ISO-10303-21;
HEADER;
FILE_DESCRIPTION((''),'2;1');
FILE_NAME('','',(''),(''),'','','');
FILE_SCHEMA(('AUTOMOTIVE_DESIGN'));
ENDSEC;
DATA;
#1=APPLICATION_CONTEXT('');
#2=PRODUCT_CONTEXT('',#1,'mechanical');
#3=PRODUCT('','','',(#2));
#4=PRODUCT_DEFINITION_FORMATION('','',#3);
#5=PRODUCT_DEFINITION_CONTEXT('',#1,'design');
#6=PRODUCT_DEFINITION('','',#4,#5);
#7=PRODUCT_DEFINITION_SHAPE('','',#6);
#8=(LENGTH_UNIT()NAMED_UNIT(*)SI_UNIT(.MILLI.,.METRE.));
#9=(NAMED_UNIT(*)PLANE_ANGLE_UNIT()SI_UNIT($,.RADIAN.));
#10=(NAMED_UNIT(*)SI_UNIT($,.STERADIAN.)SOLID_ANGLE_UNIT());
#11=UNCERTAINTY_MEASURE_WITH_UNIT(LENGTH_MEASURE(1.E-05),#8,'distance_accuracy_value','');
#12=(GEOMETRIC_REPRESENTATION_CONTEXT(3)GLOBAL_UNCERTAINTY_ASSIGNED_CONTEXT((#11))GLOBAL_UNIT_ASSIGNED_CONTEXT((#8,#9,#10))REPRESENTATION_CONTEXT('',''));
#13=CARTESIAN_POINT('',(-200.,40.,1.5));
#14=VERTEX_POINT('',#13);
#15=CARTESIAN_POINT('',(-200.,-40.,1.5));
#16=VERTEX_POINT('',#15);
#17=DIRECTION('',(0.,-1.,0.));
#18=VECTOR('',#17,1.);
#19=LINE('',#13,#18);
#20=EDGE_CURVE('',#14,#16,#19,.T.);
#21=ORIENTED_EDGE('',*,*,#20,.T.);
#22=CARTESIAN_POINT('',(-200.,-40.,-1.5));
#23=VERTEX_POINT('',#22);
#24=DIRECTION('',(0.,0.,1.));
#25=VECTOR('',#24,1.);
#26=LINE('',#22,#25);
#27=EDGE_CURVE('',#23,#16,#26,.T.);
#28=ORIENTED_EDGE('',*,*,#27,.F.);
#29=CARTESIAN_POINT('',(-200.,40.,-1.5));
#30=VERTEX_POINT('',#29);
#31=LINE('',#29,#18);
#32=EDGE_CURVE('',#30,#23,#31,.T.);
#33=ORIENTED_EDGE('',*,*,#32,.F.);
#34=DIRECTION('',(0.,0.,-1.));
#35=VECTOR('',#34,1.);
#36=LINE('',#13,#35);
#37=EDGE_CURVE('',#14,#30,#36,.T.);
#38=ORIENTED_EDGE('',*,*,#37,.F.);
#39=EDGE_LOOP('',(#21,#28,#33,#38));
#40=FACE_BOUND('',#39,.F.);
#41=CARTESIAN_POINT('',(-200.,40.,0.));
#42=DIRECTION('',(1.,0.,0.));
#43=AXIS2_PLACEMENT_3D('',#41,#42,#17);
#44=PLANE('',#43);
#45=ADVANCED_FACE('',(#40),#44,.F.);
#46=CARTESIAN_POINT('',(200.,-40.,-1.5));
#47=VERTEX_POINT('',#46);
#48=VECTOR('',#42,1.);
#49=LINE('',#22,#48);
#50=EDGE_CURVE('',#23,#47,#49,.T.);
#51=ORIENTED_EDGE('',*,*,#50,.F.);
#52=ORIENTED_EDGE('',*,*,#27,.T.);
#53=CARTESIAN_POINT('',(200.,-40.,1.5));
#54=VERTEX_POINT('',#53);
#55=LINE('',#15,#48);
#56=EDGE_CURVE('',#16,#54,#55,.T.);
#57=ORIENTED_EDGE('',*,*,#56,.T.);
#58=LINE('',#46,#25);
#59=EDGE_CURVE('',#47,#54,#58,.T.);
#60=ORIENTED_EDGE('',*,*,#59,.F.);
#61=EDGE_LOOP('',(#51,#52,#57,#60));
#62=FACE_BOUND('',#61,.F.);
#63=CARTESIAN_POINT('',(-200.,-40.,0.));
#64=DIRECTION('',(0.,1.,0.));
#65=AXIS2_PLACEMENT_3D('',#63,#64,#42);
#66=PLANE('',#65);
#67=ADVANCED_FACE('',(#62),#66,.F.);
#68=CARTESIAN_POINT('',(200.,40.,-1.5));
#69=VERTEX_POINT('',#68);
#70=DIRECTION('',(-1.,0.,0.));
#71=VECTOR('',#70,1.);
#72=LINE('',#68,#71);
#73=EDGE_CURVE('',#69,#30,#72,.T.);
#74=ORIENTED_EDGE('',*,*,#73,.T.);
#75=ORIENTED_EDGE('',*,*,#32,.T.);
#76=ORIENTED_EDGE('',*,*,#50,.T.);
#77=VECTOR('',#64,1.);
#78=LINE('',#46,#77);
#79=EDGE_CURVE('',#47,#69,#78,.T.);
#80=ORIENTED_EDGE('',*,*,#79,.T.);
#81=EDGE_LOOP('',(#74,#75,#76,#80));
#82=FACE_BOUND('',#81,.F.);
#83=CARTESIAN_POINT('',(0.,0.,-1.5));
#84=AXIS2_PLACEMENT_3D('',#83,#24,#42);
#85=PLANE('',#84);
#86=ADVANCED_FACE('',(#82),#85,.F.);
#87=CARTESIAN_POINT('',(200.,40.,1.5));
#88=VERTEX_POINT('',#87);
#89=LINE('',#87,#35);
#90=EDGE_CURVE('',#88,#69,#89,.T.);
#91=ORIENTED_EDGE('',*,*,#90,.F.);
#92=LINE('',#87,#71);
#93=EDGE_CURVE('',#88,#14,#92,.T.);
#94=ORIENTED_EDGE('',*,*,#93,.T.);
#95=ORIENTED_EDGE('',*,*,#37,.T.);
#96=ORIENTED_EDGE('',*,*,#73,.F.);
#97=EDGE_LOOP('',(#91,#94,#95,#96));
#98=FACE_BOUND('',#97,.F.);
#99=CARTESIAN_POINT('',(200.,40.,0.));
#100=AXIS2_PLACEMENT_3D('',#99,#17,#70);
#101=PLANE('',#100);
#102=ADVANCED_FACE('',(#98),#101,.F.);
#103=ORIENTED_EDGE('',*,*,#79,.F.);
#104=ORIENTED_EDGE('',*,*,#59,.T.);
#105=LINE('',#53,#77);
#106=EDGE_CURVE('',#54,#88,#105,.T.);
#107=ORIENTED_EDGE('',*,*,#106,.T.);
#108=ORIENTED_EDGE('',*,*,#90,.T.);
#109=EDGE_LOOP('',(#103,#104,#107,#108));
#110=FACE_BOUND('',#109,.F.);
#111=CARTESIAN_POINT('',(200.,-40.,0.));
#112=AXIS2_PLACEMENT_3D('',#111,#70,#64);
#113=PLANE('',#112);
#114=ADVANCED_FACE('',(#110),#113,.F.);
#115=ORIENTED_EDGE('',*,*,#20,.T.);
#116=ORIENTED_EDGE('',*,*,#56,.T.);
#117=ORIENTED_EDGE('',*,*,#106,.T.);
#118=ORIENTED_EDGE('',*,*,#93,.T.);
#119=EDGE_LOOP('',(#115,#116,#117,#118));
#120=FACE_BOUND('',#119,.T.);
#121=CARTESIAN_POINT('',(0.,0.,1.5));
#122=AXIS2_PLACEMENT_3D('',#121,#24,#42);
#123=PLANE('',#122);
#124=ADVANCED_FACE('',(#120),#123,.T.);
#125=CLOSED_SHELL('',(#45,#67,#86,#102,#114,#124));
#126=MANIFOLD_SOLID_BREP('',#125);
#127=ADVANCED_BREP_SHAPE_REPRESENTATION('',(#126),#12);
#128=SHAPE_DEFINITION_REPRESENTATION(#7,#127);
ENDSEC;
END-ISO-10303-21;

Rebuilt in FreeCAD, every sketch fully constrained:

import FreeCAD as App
import Part
import Sketcher


def add_polygon(sketch, points):
    """Adds a closed chain of lines whose ends are joined by coincident constraints."""
    first, n = sketch.GeometryCount, len(points)
    for a, b in zip(points, points[1:] + points[:1]):
        sketch.addGeometry(Part.LineSegment(App.Vector(*a, 0), App.Vector(*b, 0)), False)
    for i in range(n):
        sketch.addConstraint(Sketcher.Constraint("Coincident", first + i, 2, first + (i + 1) % n, 1))

doc = App.newDocument("Part")
params = doc.addObject("Spreadsheet::Sheet", "Params")
for row, (alias, value) in enumerate([
    ("sketch1_width", "400 mm"),
    ("sketch1_height", "80 mm"),
    ("pad1_length", "3 mm"),
], start=1):
    params.set(f"A{row}", alias)
    params.set(f"B{row}", "=" + value)
    params.setAlias(f"B{row}", alias)

body = doc.addObject("PartDesign::Body", "Body")

# Sketch on XY plane
sketch1 = body.newObject("Sketcher::SketchObject", "Sketch")
sketch1.AttachmentSupport = (doc.getObject("XY_Plane"), [""])
sketch1.MapMode = "FlatFace"
add_polygon(sketch1, [(-200, 40), (-200, -40), (200, -40), (200, 40)])  # lines 0-3
sketch1.addConstraint([
    Sketcher.Constraint("Vertical", 0),
    Sketcher.Constraint("Horizontal", 1),
    Sketcher.Constraint("Vertical", 2),
    Sketcher.Constraint("Horizontal", 3),
    Sketcher.Constraint("Symmetric", 0, 2, 2, 2, -1, 1),
    Sketcher.Constraint("DistanceX", 1, 1, 1, 2, 400.0),
    Sketcher.Constraint("DistanceY", 0, 2, 0, 1, 80.0),
])
sketch1.setExpression("Constraints[9]", "Params.sketch1_width")
sketch1.setExpression("Constraints[10]", "Params.sketch1_height")
pad1 = body.newObject("PartDesign::Pad", "Pad")
pad1.Profile = sketch1
pad1.setExpression("Length", "Params.pad1_length")
pad1.Midplane = True

doc.recompute()
